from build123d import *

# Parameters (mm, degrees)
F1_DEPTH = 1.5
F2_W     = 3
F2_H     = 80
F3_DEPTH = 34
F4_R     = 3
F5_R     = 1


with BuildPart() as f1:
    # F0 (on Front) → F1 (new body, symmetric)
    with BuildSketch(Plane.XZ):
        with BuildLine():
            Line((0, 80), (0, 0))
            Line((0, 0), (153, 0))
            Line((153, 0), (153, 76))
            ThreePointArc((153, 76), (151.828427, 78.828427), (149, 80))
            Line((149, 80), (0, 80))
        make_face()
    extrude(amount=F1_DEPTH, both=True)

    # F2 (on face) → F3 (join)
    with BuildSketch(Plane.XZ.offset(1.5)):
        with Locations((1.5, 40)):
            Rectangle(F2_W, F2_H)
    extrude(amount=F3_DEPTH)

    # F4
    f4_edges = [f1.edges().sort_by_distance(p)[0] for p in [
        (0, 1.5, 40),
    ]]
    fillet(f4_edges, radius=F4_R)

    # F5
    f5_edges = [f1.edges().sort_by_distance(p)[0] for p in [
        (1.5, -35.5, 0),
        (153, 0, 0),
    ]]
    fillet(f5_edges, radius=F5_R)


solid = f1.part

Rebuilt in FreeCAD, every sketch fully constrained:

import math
import FreeCAD as App
import Part
import Sketcher

V = App.Vector
Q = App.Units.Quantity


def edges_at(feature, points):
    """Names of the edges that pass closest to the given points."""
    edges = feature.Shape.Edges
    near = lambda p: min(range(len(edges)), key=lambda i: edges[i].distToShape(Part.Vertex(*p))[0])
    return sorted({f"Edge{near(p) + 1}" for p in points})


def add_polygon(sketch, points):
    """Adds a closed chain of lines whose ends are joined by coincident constraints."""
    first, n = sketch.GeometryCount, len(points)
    for a, b in zip(points, points[1:] + points[:1]):
        sketch.addGeometry(Part.LineSegment(App.Vector(*a, 0), App.Vector(*b, 0)), False)
    for i in range(n):
        sketch.addConstraint(Sketcher.Constraint("Coincident", first + i, 2, first + (i + 1) % n, 1))

doc = App.newDocument("Part")
body = doc.addObject("PartDesign::Body", "Body")

sketch1 = body.newObject("Sketcher::SketchObject", "Sketch")
sketch1.AttachmentSupport = (doc.getObject("XZ_Plane"), [""])
sketch1.MapMode = "FlatFace"
sketch1.addGeometry([
    Part.LineSegment(V(0, 80, 0), V(0, 0, 0)),
    Part.LineSegment(V(0, 0, 0), V(153, 0, 0)),
    Part.LineSegment(V(153, 0, 0), V(153, 76, 0)),
    Part.ArcOfCircle(Part.Circle(V(149, 76, 0), V(0, 0, 1), 4), math.radians(0), math.radians(90)),
    Part.LineSegment(V(149, 80, 0), V(0, 80, 0)),
], False)
sketch1.addConstraint([
    Sketcher.Constraint("Coincident", 0, 2, 1, 1),
    Sketcher.Constraint("Coincident", 1, 2, 2, 1),
    Sketcher.Constraint("Tangent", 2, 2, 3, 1),
    Sketcher.Constraint("Tangent", 3, 2, 4, 1),
    Sketcher.Constraint("Coincident", 4, 2, 0, 1),
    Sketcher.Constraint("Vertical", 0),
    Sketcher.Constraint("Horizontal", 1),
    Sketcher.Constraint("Vertical", 2),
    Sketcher.Constraint("Horizontal", 4),
    Sketcher.Constraint("Coincident", 0, 2, -1, 1),
    Sketcher.Constraint("Radius", 3, Q("4 mm")),
    Sketcher.Constraint("DistanceX", 1, 1, 1, 2, Q("153 mm")),
    Sketcher.Constraint("DistanceY", 0, 2, 0, 1, Q("80 mm")),
])
pad1 = body.newObject("PartDesign::Pad", "Pad")
pad1.Profile = sketch1
pad1.Length = 3
pad1.Midplane = True

sketch2 = body.newObject("Sketcher::SketchObject", "Sketch001")
sketch2.AttachmentSupport = (doc.getObject("XZ_Plane"), [""])
sketch2.MapMode = "FlatFace"
sketch2.AttachmentOffset = App.Placement(V(0, 0, 1.5), App.Rotation())
add_polygon(sketch2, [(0, 80), (0, 0), (3, 0), (3, 80)])
sketch2.addConstraint([
    Sketcher.Constraint("Vertical", 0),
    Sketcher.Constraint("Horizontal", 1),
    Sketcher.Constraint("Vertical", 2),
    Sketcher.Constraint("Horizontal", 3),
    Sketcher.Constraint("Coincident", 0, 2, -1, 1),
    Sketcher.Constraint("DistanceX", 1, 1, 1, 2, Q("3 mm")),
    Sketcher.Constraint("DistanceY", 0, 2, 0, 1, Q("80 mm")),
])
pad2 = body.newObject("PartDesign::Pad", "Pad001")
pad2.Profile = sketch2
pad2.Length = 34
doc.recompute()

fillet = body.newObject("PartDesign::Fillet", "Fillet")
fillet.Base = (pad2, edges_at(pad2, [(0, 1.5, 40)]))
fillet.Radius = 3
doc.recompute()

fillet2 = body.newObject("PartDesign::Fillet", "Fillet001")
fillet2.Base = (fillet, edges_at(fillet, [(1.5, -35.5, 0), (153, 0, 0)]))
fillet2.Radius = 1

doc.recompute()
